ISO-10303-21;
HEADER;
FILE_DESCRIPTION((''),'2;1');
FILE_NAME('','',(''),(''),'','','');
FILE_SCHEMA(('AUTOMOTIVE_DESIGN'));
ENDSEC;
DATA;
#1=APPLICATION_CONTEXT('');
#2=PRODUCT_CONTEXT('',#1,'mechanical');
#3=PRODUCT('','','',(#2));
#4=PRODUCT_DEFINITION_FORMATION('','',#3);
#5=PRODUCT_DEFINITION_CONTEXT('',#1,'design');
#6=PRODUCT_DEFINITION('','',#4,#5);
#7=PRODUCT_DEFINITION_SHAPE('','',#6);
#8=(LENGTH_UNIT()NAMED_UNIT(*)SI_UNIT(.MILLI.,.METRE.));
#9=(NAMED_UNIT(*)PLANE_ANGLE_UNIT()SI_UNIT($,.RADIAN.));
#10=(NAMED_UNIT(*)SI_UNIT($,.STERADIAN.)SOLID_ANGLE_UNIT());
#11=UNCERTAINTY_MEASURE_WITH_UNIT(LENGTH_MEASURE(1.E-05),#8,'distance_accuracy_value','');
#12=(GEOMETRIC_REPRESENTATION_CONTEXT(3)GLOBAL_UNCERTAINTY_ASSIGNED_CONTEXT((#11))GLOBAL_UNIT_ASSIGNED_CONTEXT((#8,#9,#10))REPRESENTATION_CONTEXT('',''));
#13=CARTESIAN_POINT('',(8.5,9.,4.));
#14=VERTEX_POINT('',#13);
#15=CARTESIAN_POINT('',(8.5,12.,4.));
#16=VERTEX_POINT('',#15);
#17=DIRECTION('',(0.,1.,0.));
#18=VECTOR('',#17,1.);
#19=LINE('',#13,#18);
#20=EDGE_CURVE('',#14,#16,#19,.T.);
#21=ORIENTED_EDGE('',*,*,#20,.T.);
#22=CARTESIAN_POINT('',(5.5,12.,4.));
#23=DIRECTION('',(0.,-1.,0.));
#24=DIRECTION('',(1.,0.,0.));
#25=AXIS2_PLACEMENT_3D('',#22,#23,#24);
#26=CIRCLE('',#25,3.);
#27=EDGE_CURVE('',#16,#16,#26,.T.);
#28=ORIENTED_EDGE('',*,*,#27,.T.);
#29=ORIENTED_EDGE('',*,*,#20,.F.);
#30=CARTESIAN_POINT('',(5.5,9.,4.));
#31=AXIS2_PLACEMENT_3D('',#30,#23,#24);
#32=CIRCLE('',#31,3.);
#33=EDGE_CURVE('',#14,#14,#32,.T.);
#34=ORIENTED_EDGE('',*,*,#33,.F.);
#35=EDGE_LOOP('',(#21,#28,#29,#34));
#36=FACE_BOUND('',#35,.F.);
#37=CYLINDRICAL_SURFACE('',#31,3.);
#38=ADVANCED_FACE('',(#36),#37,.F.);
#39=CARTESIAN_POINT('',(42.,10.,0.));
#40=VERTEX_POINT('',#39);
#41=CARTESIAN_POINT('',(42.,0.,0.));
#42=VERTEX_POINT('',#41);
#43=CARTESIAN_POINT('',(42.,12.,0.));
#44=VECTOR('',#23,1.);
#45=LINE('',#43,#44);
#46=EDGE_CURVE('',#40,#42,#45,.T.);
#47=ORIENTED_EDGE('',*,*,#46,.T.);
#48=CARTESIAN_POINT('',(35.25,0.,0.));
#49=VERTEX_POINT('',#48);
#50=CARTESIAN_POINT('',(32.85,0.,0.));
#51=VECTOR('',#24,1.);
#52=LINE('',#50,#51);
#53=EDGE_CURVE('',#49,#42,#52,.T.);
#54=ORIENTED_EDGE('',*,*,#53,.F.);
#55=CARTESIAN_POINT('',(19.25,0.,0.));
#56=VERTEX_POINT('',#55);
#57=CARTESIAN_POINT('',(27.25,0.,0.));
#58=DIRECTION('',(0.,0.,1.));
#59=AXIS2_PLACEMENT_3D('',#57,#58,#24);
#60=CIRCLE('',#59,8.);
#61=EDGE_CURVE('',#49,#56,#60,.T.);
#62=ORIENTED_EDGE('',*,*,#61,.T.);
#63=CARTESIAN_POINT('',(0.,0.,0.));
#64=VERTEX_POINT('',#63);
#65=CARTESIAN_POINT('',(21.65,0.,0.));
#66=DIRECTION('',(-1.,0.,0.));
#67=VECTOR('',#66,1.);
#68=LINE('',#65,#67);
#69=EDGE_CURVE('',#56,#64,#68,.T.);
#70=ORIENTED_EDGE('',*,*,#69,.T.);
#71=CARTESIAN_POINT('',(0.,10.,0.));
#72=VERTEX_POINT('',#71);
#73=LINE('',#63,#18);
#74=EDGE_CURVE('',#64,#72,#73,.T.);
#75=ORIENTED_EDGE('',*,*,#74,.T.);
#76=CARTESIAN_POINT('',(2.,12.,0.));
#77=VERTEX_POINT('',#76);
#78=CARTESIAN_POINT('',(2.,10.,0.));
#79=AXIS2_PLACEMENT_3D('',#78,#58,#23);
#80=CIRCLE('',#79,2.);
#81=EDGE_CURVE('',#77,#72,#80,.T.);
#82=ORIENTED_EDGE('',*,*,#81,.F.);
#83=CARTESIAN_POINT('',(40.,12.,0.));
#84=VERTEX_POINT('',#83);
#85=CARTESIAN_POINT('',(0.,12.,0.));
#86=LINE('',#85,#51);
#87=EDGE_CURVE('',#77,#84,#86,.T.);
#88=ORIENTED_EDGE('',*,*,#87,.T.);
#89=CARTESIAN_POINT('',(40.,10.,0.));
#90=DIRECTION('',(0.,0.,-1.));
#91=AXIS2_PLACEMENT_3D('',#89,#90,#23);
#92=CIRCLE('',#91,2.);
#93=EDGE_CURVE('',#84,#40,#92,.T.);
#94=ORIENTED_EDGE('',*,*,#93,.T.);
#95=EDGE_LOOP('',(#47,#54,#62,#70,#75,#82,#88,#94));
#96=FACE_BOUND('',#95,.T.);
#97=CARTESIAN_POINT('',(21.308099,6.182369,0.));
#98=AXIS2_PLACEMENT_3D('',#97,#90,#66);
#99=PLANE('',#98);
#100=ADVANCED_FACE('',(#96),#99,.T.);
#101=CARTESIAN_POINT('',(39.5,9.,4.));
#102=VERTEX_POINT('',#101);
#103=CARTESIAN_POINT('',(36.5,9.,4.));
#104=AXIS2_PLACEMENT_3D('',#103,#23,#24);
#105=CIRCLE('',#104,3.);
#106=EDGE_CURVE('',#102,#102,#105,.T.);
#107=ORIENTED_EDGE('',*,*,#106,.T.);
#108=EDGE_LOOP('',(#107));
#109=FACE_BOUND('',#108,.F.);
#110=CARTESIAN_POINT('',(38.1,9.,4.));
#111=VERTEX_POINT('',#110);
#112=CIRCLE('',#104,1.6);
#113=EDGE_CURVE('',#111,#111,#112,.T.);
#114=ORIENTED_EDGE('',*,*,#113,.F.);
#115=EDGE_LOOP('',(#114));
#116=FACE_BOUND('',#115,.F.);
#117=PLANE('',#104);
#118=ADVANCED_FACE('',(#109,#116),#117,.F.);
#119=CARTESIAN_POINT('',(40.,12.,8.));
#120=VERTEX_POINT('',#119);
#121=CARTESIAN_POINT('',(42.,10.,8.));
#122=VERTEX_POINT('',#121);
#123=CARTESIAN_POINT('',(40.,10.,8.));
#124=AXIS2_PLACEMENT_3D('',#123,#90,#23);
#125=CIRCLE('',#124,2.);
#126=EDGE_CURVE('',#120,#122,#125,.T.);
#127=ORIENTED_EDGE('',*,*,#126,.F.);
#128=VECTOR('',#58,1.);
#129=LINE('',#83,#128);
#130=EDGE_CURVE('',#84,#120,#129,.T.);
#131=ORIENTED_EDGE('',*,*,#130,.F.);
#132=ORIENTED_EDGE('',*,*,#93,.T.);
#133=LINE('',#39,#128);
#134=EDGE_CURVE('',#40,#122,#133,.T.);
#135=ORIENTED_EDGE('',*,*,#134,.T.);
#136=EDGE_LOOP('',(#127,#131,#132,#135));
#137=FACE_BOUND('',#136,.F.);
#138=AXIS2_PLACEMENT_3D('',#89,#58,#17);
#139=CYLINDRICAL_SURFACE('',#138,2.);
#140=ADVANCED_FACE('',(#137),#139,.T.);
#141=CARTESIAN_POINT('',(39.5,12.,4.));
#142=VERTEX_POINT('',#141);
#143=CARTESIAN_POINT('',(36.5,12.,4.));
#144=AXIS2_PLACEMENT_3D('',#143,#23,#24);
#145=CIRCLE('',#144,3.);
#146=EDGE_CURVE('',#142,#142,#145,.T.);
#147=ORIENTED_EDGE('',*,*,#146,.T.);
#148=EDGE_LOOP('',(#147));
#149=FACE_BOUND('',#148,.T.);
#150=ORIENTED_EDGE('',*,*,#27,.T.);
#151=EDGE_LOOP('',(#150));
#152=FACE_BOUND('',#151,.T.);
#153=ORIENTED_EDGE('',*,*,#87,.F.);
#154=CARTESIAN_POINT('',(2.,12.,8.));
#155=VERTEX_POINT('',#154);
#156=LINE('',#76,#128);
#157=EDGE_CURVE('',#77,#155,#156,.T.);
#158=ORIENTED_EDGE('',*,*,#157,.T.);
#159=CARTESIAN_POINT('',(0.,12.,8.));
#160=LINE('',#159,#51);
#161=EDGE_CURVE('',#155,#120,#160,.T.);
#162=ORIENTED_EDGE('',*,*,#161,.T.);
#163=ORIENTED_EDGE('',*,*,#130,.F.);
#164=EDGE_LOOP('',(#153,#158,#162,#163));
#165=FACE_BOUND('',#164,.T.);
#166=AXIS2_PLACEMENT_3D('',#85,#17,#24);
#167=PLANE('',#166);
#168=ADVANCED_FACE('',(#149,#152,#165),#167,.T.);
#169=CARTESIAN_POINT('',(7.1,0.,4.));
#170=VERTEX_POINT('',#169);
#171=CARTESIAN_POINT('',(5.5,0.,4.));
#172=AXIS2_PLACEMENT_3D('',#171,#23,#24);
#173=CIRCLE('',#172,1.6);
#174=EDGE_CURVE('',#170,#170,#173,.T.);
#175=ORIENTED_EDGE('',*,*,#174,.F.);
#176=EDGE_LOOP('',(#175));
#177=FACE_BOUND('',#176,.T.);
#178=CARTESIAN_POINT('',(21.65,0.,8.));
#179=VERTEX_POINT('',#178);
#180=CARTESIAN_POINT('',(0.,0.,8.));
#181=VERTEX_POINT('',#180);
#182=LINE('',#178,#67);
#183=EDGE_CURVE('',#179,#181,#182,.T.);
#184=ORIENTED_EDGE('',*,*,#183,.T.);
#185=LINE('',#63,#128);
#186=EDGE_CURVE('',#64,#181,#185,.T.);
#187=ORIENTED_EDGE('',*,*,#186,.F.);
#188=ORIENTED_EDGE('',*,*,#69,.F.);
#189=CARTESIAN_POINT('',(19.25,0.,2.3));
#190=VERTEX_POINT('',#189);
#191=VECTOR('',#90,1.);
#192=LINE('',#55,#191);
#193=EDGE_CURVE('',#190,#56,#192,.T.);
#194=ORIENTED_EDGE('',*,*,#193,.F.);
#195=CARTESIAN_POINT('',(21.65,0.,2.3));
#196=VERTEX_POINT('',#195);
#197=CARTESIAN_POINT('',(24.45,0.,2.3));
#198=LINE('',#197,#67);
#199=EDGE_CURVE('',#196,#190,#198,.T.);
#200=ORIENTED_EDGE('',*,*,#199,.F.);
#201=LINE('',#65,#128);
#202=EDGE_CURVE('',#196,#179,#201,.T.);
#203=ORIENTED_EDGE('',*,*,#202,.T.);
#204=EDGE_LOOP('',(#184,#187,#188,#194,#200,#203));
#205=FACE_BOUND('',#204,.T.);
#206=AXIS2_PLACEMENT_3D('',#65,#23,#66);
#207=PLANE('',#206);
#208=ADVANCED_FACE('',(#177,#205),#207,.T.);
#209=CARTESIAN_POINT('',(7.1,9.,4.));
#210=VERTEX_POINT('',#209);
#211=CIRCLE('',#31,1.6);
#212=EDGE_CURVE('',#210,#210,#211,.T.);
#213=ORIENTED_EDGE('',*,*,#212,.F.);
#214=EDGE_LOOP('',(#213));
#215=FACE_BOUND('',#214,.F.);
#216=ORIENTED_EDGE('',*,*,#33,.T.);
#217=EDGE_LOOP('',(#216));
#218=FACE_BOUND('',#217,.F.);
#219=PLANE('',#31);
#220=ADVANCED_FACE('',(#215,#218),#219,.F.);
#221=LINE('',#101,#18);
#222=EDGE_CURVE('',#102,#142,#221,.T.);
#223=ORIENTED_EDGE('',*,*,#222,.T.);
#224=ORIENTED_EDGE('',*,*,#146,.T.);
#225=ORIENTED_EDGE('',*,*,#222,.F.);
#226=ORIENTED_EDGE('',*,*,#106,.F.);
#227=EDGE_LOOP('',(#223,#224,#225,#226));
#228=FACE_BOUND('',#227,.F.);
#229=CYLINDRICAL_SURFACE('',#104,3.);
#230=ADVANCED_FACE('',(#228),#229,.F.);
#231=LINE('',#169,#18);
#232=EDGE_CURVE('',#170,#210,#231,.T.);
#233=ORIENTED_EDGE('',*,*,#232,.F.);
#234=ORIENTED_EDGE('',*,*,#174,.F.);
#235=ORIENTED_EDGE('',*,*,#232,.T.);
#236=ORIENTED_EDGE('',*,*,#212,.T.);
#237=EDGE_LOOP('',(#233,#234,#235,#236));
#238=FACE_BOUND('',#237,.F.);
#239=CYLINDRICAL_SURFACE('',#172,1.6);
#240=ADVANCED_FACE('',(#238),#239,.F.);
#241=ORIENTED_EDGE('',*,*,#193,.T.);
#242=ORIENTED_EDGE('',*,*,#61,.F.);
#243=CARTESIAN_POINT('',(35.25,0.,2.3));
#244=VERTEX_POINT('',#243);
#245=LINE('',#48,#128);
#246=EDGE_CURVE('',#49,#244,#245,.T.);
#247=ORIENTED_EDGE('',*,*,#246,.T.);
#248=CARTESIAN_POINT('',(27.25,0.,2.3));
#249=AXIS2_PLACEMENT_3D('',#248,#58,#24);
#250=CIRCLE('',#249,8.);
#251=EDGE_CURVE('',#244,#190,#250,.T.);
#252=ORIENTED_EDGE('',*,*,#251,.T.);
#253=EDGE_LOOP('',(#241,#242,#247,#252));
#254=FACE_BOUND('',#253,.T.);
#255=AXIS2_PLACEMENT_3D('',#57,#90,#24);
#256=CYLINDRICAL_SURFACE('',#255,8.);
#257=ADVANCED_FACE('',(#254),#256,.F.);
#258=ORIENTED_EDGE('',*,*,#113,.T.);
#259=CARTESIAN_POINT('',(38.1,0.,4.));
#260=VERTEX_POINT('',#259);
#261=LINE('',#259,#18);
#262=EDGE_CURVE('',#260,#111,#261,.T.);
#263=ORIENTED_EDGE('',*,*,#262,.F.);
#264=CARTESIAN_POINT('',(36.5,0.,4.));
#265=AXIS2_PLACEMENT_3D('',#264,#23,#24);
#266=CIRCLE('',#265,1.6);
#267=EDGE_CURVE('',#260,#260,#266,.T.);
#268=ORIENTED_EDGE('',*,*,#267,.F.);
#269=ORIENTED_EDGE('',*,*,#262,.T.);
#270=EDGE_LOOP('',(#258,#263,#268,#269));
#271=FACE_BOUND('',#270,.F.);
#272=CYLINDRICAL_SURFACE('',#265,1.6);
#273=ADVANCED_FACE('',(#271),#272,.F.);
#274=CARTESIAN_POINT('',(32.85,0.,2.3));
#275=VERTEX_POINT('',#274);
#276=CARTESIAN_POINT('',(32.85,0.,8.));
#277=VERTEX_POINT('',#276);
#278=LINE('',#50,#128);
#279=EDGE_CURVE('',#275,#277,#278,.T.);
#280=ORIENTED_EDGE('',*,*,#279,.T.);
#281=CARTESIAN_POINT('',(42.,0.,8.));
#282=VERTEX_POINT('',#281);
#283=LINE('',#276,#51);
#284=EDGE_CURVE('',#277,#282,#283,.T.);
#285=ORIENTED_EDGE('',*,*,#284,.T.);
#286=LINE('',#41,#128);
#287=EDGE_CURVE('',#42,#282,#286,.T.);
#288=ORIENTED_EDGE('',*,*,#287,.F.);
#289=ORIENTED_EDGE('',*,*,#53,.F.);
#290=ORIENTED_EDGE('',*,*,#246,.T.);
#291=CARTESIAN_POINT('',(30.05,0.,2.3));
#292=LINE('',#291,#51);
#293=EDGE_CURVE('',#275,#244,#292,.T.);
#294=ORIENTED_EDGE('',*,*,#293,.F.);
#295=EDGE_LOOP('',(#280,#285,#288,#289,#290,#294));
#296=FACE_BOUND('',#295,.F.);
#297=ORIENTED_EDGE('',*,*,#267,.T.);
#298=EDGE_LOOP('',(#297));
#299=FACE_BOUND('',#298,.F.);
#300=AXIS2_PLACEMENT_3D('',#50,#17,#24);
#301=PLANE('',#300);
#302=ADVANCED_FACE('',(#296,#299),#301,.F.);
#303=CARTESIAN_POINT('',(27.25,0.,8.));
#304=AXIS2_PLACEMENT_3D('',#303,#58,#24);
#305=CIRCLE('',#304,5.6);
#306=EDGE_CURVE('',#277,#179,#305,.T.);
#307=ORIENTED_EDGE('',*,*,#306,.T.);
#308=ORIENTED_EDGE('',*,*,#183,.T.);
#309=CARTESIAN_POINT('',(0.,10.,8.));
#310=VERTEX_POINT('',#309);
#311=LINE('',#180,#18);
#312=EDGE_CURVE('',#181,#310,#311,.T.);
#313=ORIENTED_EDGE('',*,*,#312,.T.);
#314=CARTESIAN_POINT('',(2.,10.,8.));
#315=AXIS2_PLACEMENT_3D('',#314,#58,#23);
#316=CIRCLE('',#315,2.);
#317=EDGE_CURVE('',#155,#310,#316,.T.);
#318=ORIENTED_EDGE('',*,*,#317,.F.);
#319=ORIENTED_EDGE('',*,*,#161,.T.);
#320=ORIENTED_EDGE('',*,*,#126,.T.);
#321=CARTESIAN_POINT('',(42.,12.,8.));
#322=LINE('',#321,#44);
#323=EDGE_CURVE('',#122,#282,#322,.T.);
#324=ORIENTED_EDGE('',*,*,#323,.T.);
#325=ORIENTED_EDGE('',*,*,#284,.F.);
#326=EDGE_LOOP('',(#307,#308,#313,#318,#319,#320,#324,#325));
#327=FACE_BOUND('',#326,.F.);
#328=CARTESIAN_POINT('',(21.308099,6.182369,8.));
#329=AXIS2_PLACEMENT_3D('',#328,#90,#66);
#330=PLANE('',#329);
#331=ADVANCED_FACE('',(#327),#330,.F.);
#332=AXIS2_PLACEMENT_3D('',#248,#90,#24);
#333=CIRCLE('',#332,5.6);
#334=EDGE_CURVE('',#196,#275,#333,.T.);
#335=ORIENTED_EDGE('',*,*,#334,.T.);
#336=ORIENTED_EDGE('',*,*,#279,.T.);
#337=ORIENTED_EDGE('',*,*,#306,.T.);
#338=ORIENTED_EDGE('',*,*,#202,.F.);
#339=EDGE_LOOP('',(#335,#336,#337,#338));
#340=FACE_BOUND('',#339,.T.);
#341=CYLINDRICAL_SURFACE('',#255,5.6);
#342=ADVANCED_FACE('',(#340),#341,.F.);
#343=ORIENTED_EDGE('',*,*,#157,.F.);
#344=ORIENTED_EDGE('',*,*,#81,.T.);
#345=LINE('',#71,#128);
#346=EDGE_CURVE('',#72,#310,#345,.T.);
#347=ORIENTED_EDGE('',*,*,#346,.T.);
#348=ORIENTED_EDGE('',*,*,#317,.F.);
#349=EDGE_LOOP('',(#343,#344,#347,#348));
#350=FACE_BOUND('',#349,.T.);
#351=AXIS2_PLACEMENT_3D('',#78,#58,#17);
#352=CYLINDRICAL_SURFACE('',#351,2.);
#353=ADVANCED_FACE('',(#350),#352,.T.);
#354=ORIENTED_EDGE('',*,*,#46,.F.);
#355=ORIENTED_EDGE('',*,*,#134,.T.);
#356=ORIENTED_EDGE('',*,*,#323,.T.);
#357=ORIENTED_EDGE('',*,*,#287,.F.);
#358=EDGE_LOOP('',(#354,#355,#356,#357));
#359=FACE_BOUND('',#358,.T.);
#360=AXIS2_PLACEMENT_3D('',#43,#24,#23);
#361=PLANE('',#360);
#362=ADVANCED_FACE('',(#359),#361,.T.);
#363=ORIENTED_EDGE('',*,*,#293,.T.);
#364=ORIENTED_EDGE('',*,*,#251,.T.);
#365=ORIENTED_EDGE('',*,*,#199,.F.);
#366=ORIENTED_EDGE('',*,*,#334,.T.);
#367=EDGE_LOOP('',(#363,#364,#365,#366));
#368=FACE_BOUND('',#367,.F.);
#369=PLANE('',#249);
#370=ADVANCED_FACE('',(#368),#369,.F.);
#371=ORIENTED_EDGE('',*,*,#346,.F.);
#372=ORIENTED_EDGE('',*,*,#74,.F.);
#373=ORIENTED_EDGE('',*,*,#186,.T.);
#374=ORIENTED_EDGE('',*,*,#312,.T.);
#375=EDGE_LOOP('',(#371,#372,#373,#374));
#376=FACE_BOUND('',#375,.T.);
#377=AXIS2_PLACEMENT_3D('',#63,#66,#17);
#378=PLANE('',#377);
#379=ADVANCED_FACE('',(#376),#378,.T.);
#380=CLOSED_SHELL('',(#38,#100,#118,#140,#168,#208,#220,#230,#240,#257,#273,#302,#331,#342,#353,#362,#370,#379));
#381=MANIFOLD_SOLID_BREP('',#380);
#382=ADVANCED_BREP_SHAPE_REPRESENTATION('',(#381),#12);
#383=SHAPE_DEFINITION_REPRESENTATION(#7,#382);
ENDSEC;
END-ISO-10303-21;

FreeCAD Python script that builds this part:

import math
import FreeCAD as App
import Part
import Sketcher
from FreeCAD import Vector
Q = App.Units.Quantity


def edges_at(feature, points):
    """Names of the edges that pass closest to the given points."""
    edges = feature.Shape.Edges
    near = lambda p: min(range(len(edges)), key=lambda i: edges[i].distToShape(Part.Vertex(*p))[0])
    return sorted({f"Edge{near(p) + 1}" for p in points})

doc = App.newDocument("Part")
body = doc.addObject("PartDesign::Body", "Body")
body.AllowCompound = True

# Sketch on XZ plane
sketch1 = body.newObject("Sketcher::SketchObject", "Sketch")
sketch1.AttachmentSupport = (doc.getObject("XZ_Plane"), [""])
sketch1.MapMode = "FlatFace"
sketch1.addGeometry([
    Part.Circle(Vector(5.5, 4, 0), Vector(0, 0, 1), 1.6),
    Part.Circle(Vector(36.5, 4, 0), Vector(0, 0, 1), 1.6),
], False)
sketch1.addConstraint([
    Sketcher.Constraint("Equal", 0, 1),
    Sketcher.Constraint("Horizontal", 0, 3, 1, 3),
    Sketcher.Constraint("Diameter", 0, Q("3.2 mm")),
    Sketcher.Constraint("DistanceY", -1, 1, 0, 3, Q("4 mm")),
    Sketcher.Constraint("DistanceX", 0, 3, 1, 3, Q("31 mm")),
    Sketcher.Constraint("DistanceX", -1, 1, 0, 3, Q("5.5 mm")),
])
pad1 = body.newObject("PartDesign::Pad", "Pad")
pad1.Profile = sketch1
pad1.Length = 12
pad1.Reversed = True
body2 = doc.addObject("PartDesign::Body", "Body001")

# Sketch on XY plane
sketch2 = body2.newObject("Sketcher::SketchObject", "Sketch001")
sketch2.AttachmentSupport = (doc.getObject("XY_Plane001"), [""])
sketch2.MapMode = "FlatFace"
sketch2.addGeometry(Part.Circle(Vector(27, 0, 0), Vector(0, 0, 1), 8), False)
sketch2.addConstraint([
    Sketcher.Constraint("PointOnObject", 0, 3, -1),
    Sketcher.Constraint("Diameter", 0, Q("16 mm")),
    Sketcher.Constraint("DistanceX", -1, 1, 0, 3, Q("27.25 mm")),
])
pad2 = body2.newObject("PartDesign::Pad", "Pad001")
pad2.Profile = sketch2
pad2.Length = 2.3
body3 = doc.addObject("PartDesign::Body", "Body002")
body3.AllowCompound = True

# Sketch on XZ plane
sketch3 = body3.newObject("Sketcher::SketchObject", "Sketch002")
sketch3.AttachmentSupport = (doc.getObject("XZ_Plane002"), [""])
sketch3.MapMode = "FlatFace"
sketch3.AttachmentOffset = App.Placement(Vector(0, 0, -9), App.Rotation())
sketch3.addGeometry([
    Part.Circle(Vector(5.5, 4, 0), Vector(0, 0, 1), 3),
    Part.Circle(Vector(36.5, 4, 0), Vector(0, 0, 1), 3),
], False)
sketch3.addConstraint([
    Sketcher.Constraint("Equal", 0, 1),
    Sketcher.Constraint("Horizontal", 0, 3, 1, 3),
    Sketcher.Constraint("Diameter", 0, Q("6 mm")),
    Sketcher.Constraint("DistanceY", -1, 1, 0, 3, Q("4 mm")),
    Sketcher.Constraint("DistanceX", 0, 3, 1, 3, Q("31 mm")),
    Sketcher.Constraint("DistanceX", -1, 1, 0, 3, Q("5.5 mm")),
])
pad3 = body3.newObject("PartDesign::Pad", "Pad002")
pad3.Profile = sketch3
pad3.Length = 3
pad3.Reversed = True
doc.recompute()

boolean = body3.newObject("PartDesign::Boolean", "Boolean")
boolean.Type = "Fuse"
boolean.addObjects([body])
doc.recompute()

boolean2 = body3.newObject("PartDesign::Boolean", "Boolean001")
boolean2.Type = "Fuse"
boolean2.addObjects([body2])
body4 = doc.addObject("PartDesign::Body", "Body003")

# Sketch on XY plane
sketch4 = body4.newObject("Sketcher::SketchObject", "Sketch003")
sketch4.AttachmentSupport = (doc.getObject("XY_Plane003"), [""])
sketch4.MapMode = "FlatFace"
sketch4.addGeometry([
    Part.LineSegment(Vector(42, 12, 0), Vector(0, 12, 0)),  # 0
    Part.LineSegment(Vector(0, 12, 0), Vector(0, 0, 0)),  # 1
    Part.LineSegment(Vector(0, 0, 0), Vector(22, 0, 0)),  # 2
    Part.ArcOfCircle(Part.Circle(Vector(27, 0, 0), Vector(0, 0, 1), 6), math.radians(0), math.radians(180)),  # 3
    Part.LineSegment(Vector(33, 0, 0), Vector(42, 0, 0)),  # 4
    Part.LineSegment(Vector(42, 0, 0), Vector(42, 12, 0)),  # 5
], False)
sketch4.addConstraint([
    Sketcher.Constraint("Coincident", 0, 2, 1, 1),
    Sketcher.Constraint("Coincident", 1, 2, 2, 1),
    Sketcher.Constraint("Coincident", 2, 2, 3, 2),
    Sketcher.Constraint("Coincident", 3, 1, 4, 1),
    Sketcher.Constraint("Coincident", 4, 2, 5, 1),
    Sketcher.Constraint("Coincident", 5, 2, 0, 1),
    Sketcher.Constraint("Horizontal", 0),
    Sketcher.Constraint("Vertical", 1),
    Sketcher.Constraint("Horizontal", 2),
    Sketcher.Constraint("Horizontal", 4),
    Sketcher.Constraint("Vertical", 5),
    Sketcher.Constraint("Coincident", 1, 2, -1, 1),
    Sketcher.Constraint("PointOnObject", 3, 3, -1),
    Sketcher.Constraint("PointOnObject", 3, 1, -1),
    Sketcher.Constraint("Radius", 3, Q("5.6 mm")),
    Sketcher.Constraint("DistanceX", 0, 2, 0, 1, Q("42 mm")),
    Sketcher.Constraint("DistanceY", 1, 2, 1, 1, Q("12 mm")),
    Sketcher.Constraint("DistanceX", 2, 1, 2, 2, Q("21.65 mm")),
])
pad4 = body4.newObject("PartDesign::Pad", "Pad003")
pad4.Profile = sketch4
pad4.Length = 8
doc.recompute()

boolean3 = body4.newObject("PartDesign::Boolean", "Boolean002")
boolean3.Type = "Cut"
boolean3.addObjects([body3])
doc.recompute()

fillet = body4.newObject("PartDesign::Fillet", "Fillet")
fillet.Base = (boolean3, edges_at(boolean3, [(42, 12, 4), (0, 12, 4)]))
fillet.Radius = 2

doc.recompute()
